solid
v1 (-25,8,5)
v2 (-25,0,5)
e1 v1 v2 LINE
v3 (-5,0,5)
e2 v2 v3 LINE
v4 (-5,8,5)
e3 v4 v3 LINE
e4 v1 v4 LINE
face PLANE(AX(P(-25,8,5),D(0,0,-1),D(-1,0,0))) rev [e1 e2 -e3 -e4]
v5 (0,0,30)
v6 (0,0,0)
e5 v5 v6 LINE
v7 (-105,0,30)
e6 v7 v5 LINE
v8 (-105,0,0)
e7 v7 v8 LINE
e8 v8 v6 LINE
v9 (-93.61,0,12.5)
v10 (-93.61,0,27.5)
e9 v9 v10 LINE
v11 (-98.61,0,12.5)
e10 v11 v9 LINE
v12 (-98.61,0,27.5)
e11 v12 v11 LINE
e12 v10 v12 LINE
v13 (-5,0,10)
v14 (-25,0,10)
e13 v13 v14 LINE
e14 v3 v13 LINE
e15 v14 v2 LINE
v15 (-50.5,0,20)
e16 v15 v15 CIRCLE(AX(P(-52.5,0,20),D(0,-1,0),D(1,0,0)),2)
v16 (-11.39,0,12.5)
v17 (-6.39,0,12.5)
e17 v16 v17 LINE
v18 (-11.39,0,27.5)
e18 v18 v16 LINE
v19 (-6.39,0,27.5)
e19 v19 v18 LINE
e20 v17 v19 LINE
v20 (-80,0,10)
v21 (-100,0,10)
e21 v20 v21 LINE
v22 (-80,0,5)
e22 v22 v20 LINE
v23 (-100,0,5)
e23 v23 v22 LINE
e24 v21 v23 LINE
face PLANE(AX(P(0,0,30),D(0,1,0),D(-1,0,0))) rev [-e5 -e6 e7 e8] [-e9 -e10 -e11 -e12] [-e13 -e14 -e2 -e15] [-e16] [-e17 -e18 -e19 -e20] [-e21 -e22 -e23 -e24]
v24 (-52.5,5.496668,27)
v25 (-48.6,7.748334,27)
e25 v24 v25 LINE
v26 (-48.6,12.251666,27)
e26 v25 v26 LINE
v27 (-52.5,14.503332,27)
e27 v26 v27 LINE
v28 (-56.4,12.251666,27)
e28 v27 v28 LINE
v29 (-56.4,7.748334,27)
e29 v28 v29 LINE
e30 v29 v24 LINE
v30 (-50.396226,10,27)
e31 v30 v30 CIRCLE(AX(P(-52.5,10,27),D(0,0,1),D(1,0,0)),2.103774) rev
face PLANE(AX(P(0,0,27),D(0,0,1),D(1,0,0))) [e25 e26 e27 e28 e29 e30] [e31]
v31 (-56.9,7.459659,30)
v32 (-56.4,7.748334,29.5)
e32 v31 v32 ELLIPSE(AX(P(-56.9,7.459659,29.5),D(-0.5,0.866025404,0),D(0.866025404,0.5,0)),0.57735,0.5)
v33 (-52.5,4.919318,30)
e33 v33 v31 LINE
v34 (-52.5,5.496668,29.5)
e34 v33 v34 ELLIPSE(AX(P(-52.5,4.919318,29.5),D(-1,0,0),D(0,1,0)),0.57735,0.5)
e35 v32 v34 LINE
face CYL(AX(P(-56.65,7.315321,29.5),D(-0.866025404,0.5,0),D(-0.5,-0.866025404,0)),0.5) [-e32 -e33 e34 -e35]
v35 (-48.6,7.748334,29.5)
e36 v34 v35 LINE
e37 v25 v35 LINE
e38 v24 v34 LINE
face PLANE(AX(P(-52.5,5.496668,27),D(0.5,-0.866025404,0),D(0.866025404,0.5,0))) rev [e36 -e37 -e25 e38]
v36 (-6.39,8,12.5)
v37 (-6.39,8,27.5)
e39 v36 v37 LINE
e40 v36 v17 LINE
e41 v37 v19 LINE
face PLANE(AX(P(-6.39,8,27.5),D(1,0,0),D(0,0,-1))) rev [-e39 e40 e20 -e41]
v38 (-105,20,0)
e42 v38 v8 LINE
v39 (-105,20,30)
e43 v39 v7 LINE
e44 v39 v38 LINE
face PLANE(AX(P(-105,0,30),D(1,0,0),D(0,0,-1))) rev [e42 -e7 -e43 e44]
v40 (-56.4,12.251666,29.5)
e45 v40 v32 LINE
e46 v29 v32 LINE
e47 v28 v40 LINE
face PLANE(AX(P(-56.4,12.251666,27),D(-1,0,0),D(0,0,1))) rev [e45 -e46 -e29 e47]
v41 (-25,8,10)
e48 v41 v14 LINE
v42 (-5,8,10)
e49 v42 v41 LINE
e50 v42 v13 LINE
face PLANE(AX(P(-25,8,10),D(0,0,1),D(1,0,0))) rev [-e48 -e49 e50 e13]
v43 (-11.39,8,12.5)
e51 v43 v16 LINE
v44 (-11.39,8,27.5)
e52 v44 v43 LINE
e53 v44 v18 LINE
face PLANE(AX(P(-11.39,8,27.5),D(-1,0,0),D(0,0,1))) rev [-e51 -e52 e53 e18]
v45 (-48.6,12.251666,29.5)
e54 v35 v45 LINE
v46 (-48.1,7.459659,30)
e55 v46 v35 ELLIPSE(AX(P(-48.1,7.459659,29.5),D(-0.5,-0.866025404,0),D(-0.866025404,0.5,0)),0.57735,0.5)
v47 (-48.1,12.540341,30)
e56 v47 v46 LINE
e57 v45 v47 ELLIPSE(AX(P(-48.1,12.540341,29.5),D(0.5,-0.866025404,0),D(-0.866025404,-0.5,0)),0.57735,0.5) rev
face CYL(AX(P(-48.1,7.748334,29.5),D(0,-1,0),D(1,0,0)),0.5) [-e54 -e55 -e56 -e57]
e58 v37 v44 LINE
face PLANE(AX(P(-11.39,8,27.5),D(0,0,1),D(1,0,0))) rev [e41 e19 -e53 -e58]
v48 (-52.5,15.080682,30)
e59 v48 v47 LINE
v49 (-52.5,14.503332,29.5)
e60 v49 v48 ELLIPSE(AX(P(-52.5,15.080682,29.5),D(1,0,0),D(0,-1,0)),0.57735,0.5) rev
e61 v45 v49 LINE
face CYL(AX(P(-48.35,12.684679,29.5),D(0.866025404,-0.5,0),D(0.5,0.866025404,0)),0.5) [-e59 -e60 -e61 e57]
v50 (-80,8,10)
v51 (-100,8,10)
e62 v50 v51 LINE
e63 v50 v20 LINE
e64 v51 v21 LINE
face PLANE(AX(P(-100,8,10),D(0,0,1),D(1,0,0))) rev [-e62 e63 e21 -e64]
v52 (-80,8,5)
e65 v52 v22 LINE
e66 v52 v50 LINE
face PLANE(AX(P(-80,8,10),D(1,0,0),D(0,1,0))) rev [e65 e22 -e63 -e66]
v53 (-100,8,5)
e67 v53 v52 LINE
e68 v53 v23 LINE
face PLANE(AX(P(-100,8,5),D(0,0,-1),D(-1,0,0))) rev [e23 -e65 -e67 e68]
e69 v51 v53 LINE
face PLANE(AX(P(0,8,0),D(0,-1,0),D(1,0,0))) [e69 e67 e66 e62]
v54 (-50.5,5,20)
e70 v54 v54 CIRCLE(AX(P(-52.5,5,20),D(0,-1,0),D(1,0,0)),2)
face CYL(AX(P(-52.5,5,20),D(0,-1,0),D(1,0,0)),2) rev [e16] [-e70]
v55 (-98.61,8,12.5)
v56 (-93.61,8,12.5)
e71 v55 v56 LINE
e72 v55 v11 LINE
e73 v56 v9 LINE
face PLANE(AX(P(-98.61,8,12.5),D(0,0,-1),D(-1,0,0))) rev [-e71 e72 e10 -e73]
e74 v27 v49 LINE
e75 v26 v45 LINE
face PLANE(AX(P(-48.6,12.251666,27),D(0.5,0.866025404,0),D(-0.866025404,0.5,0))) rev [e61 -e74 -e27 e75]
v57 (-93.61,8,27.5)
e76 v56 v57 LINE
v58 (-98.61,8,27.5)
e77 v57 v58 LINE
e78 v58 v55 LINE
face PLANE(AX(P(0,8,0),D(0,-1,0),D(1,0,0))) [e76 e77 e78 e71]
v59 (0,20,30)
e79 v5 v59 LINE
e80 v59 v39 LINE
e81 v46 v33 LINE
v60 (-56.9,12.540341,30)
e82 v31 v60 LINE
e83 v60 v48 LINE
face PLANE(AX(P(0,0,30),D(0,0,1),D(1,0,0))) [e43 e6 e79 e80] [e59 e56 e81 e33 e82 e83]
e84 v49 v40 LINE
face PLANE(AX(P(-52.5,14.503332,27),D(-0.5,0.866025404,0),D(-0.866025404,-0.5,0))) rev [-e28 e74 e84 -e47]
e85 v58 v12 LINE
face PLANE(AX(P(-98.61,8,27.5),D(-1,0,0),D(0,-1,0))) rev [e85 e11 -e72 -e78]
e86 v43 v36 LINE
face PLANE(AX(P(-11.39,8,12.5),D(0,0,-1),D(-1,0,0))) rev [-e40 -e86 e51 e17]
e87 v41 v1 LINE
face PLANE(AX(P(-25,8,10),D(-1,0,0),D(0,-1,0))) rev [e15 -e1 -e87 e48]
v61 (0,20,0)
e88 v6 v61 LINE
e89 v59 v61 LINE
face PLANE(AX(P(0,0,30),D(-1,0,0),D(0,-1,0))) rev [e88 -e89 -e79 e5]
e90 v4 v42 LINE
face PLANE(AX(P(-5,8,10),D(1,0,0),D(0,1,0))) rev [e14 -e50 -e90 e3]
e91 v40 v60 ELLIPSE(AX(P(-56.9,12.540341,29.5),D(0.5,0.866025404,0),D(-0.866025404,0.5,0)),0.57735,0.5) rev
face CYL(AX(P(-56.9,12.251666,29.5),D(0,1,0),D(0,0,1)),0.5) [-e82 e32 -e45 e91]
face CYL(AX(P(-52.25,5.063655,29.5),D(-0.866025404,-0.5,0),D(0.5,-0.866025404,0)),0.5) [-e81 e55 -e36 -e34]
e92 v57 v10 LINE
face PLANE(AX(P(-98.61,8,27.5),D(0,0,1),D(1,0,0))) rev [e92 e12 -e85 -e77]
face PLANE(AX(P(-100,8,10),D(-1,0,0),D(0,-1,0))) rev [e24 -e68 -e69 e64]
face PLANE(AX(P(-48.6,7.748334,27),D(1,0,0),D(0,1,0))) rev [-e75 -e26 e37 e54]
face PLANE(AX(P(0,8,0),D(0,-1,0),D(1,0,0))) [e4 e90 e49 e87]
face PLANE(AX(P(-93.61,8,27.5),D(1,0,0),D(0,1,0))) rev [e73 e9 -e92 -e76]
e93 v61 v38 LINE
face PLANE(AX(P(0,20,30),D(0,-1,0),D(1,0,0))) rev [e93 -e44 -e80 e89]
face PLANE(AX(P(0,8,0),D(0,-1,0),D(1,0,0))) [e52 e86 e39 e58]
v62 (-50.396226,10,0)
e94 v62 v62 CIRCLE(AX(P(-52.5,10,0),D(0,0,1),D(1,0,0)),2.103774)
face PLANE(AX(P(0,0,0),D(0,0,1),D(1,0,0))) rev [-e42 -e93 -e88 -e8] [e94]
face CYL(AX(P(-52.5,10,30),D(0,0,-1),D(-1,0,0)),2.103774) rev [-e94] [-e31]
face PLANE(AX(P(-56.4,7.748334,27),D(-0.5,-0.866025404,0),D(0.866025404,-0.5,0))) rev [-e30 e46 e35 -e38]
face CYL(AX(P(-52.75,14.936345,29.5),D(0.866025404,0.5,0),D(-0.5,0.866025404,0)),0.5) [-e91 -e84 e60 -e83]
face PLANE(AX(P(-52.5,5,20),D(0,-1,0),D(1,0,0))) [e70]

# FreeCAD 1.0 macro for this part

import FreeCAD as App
import Part
import Sketcher
Q = App.Units.Quantity


def edges_at(feature, points):
    """Names of the edges that pass closest to the given points."""
    edges = feature.Shape.Edges
    near = lambda p: min(range(len(edges)), key=lambda i: edges[i].distToShape(Part.Vertex(*p))[0])
    return sorted({f"Edge{near(p) + 1}" for p in points})

doc = App.newDocument("Part")
body = doc.addObject("PartDesign::Body", "Body")

sketch1 = doc.addObject("Sketcher::SketchObject", "Sketch")
body.addObject(sketch1)
sketch1.AttachmentSupport = (doc.XY_Plane, [""])
sketch1.MapMode = "FlatFace"
sketch1.addGeometry([
    Part.LineSegment(App.Vector(-105, 20, 0), App.Vector(-105, 0, 0)),
    Part.LineSegment(App.Vector(-105, 0, 0), App.Vector(0, 0, 0)),
    Part.LineSegment(App.Vector(0, 0, 0), App.Vector(0, 20, 0)),
    Part.LineSegment(App.Vector(0, 20, 0), App.Vector(-105, 20, 0)),
], False)
sketch1.addConstraint([
    Sketcher.Constraint("Coincident", 0, 2, 1, 1),
    Sketcher.Constraint("Coincident", 1, 2, 2, 1),
    Sketcher.Constraint("Coincident", 2, 2, 3, 1),
    Sketcher.Constraint("Coincident", 3, 2, 0, 1),
    Sketcher.Constraint("Vertical", 0),
    Sketcher.Constraint("Horizontal", 1),
    Sketcher.Constraint("Vertical", 2),
    Sketcher.Constraint("Horizontal", 3),
    Sketcher.Constraint("Coincident", 1, 2, -1, 1),
    Sketcher.Constraint("DistanceX", 1, 1, 1, 2, Q("105 mm")),
    Sketcher.Constraint("DistanceY", 0, 2, 0, 1, Q("20 mm")),
])
pad1 = doc.addObject("PartDesign::Pad", "Pad")
body.addObject(pad1)
pad1.Profile = sketch1
pad1.Length = 30

sketch2 = doc.addObject("Sketcher::SketchObject", "Sketch001")
body.addObject(sketch2)
sketch2.AttachmentSupport = (doc.XY_Plane, [""])
sketch2.MapMode = "FlatFace"
sketch2.AttachmentOffset = App.Placement(App.Vector(0, 0, 30), App.Rotation())
sketch2.addGeometry([
    Part.LineSegment(App.Vector(-52.5, 5.5, 0), App.Vector(-48.6, 7.7, 0)),
    Part.LineSegment(App.Vector(-48.6, 7.7, 0), App.Vector(-48.6, 12.3, 0)),
    Part.LineSegment(App.Vector(-48.6, 12.3, 0), App.Vector(-52.5, 14.5, 0)),
    Part.LineSegment(App.Vector(-52.5, 14.5, 0), App.Vector(-56.4, 12.3, 0)),
    Part.LineSegment(App.Vector(-56.4, 12.3, 0), App.Vector(-56.4, 7.7, 0)),
    Part.LineSegment(App.Vector(-56.4, 7.7, 0), App.Vector(-52.5, 5.5, 0)),
], False)
sketch2.addConstraint([
    Sketcher.Constraint("Coincident", 0, 2, 1, 1),
    Sketcher.Constraint("Coincident", 1, 2, 2, 1),
    Sketcher.Constraint("Coincident", 2, 2, 3, 1),
    Sketcher.Constraint("Coincident", 3, 2, 4, 1),
    Sketcher.Constraint("Coincident", 4, 2, 5, 1),
    Sketcher.Constraint("Coincident", 5, 2, 0, 1),
    Sketcher.Constraint("Vertical", 1),
    Sketcher.Constraint("Vertical", 4),
    Sketcher.Constraint("Parallel", 0, 3),
    Sketcher.Constraint("Parallel", 2, 5),
    Sketcher.Constraint("Horizontal", 1, 2, 3, 2),
    Sketcher.Constraint("Horizontal", 0, 2, 4, 2),
    Sketcher.Constraint("Vertical", 2, 2, 5, 2),
    Sketcher.Constraint("Angle", 0, Q("30 deg")),
    Sketcher.Constraint("DistanceX", 0, 2, -1, 1, Q("48.6 mm")),
    Sketcher.Constraint("DistanceX", 2, 2, -1, 1, Q("52.5 mm")),
    Sketcher.Constraint("DistanceY", 0, 2, 2, 2, Q("6.754998 mm")),
    Sketcher.Constraint("DistanceY", -1, 1, 0, 2, Q("7.748334 mm")),
])
pocket1 = doc.addObject("PartDesign::Pocket", "Pocket")
body.addObject(pocket1)
pocket1.Profile = sketch2
pocket1.Length = 3
doc.recompute()

fillet = doc.addObject("PartDesign::Fillet", "Fillet")
body.addObject(fillet)
fillet.Base = (pocket1, edges_at(pocket1, [
    (-54.45, 6.623, 30),
    (-50.55, 6.623, 30),
    (-48.6, 10, 30),
    (-50.55, 13.377, 30),
    (-54.45, 13.377, 30),
    (-56.4, 10, 30),
]))
fillet.Radius = 0.5

sketch3 = doc.addObject("Sketcher::SketchObject", "Sketch002")
body.addObject(sketch3)
sketch3.AttachmentSupport = (doc.XY_Plane, [""])
sketch3.MapMode = "FlatFace"
sketch3.addGeometry(Part.Circle(App.Vector(-52.5, 10, 0), App.Vector(0, 0, 1), 2.1), False)
sketch3.addConstraint([
    Sketcher.Constraint("DistanceY", -1, 1, 0, 3, Q("10 mm")),
    Sketcher.Constraint("DistanceX", 0, 3, -1, 1, Q("52.5 mm")),
    Sketcher.Constraint("Diameter", 0, Q("4.207548 mm")),
])
pocket2 = doc.addObject("PartDesign::Pocket", "Pocket001")
body.addObject(pocket2)
pocket2.Profile = sketch3
pocket2.Type = "ThroughAll"
pocket2.Reversed = True

sketch4 = doc.addObject("Sketcher::SketchObject", "Sketch003")
body.addObject(sketch4)
sketch4.AttachmentSupport = (doc.XZ_Plane, [""])
sketch4.MapMode = "FlatFace"
sketch4.addGeometry(Part.Circle(App.Vector(-52.5, 20, 0), App.Vector(0, 0, 1), 2), False)
sketch4.addConstraint([
    Sketcher.Constraint("Diameter", 0, Q("4 mm")),
    Sketcher.Constraint("DistanceY", -1, 1, 0, 3, Q("20 mm")),
    Sketcher.Constraint("DistanceX", 0, 3, -1, 1, Q("52.5 mm")),
])
pocket3 = doc.addObject("PartDesign::Pocket", "Pocket002")
body.addObject(pocket3)
pocket3.Profile = sketch4
pocket3.Length = 5

sketch5 = doc.addObject("Sketcher::SketchObject", "Sketch004")
body.addObject(sketch5)
sketch5.AttachmentSupport = (doc.XZ_Plane, [""])
sketch5.MapMode = "FlatFace"
sketch5.addGeometry([
    Part.LineSegment(App.Vector(-25, 10, 0), App.Vector(-25, 5, 0)),
    Part.LineSegment(App.Vector(-25, 5, 0), App.Vector(-5, 5, 0)),
    Part.LineSegment(App.Vector(-5, 5, 0), App.Vector(-5, 10, 0)),
    Part.LineSegment(App.Vector(-5, 10, 0), App.Vector(-25, 10, 0)),
    Part.LineSegment(App.Vector(-11, 28, 0), App.Vector(-11, 12, 0)),
    Part.LineSegment(App.Vector(-11, 12, 0), App.Vector(-6, 12, 0)),
    Part.LineSegment(App.Vector(-6, 12, 0), App.Vector(-6, 28, 0)),
    Part.LineSegment(App.Vector(-6, 28, 0), App.Vector(-11, 28, 0)),
    Part.LineSegment(App.Vector(-99, 28, 0), App.Vector(-99, 12, 0)),
    Part.LineSegment(App.Vector(-99, 12, 0), App.Vector(-94, 12, 0)),
    Part.LineSegment(App.Vector(-94, 12, 0), App.Vector(-94, 28, 0)),
    Part.LineSegment(App.Vector(-94, 28, 0), App.Vector(-99, 28, 0)),
    Part.LineSegment(App.Vector(-100, 10, 0), App.Vector(-100, 5, 0)),
    Part.LineSegment(App.Vector(-100, 5, 0), App.Vector(-80, 5, 0)),
    Part.LineSegment(App.Vector(-80, 5, 0), App.Vector(-80, 10, 0)),
    Part.LineSegment(App.Vector(-80, 10, 0), App.Vector(-100, 10, 0)),
], False)
sketch5.addConstraint([
    Sketcher.Constraint("Coincident", 0, 2, 1, 1),
    Sketcher.Constraint("Coincident", 1, 2, 2, 1),
    Sketcher.Constraint("Coincident", 2, 2, 3, 1),
    Sketcher.Constraint("Coincident", 3, 2, 0, 1),
    Sketcher.Constraint("Coincident", 4, 2, 5, 1),
    Sketcher.Constraint("Coincident", 5, 2, 6, 1),
    Sketcher.Constraint("Coincident", 6, 2, 7, 1),
    Sketcher.Constraint("Coincident", 7, 2, 4, 1),
    Sketcher.Constraint("Coincident", 8, 2, 9, 1),
    Sketcher.Constraint("Coincident", 9, 2, 10, 1),
    Sketcher.Constraint("Coincident", 10, 2, 11, 1),
    Sketcher.Constraint("Coincident", 11, 2, 8, 1),
    Sketcher.Constraint("Coincident", 12, 2, 13, 1),
    Sketcher.Constraint("Coincident", 13, 2, 14, 1),
    Sketcher.Constraint("Coincident", 14, 2, 15, 1),
    Sketcher.Constraint("Coincident", 15, 2, 12, 1),
    Sketcher.Constraint("Vertical", 0),
    Sketcher.Constraint("Horizontal", 1),
    Sketcher.Constraint("Vertical", 2),
    Sketcher.Constraint("Horizontal", 3),
    Sketcher.Constraint("Vertical", 4),
    Sketcher.Constraint("Horizontal", 5),
    Sketcher.Constraint("Vertical", 6),
    Sketcher.Constraint("Horizontal", 7),
    Sketcher.Constraint("Vertical", 8),
    Sketcher.Constraint("Horizontal", 9),
    Sketcher.Constraint("Vertical", 10),
    Sketcher.Constraint("Horizontal", 11),
    Sketcher.Constraint("Vertical", 12),
    Sketcher.Constraint("Horizontal", 13),
    Sketcher.Constraint("Vertical", 14),
    Sketcher.Constraint("Horizontal", 15),
    Sketcher.Constraint("Horizontal", 5, 2, 8, 2),
    Sketcher.Constraint("Horizontal", 7, 2, 10, 2),
    Sketcher.Constraint("Horizontal", 1, 2, 12, 2),
    Sketcher.Constraint("Horizontal", 3, 2, 14, 2),
    Sketcher.Constraint("Equal", 7, 9),
    Sketcher.Constraint("Equal", 3, 13),
    Sketcher.Constraint("Equal", 11, 0),
    Sketcher.Constraint("DistanceX", 1, 1, 1, 2, Q("20 mm")),
    Sketcher.Constraint("DistanceX", 5, 1, 5, 2, Q("5 mm")),
    Sketcher.Constraint("DistanceY", 4, 2, 4, 1, Q("15 mm")),
    Sketcher.Constraint("DistanceX", 0, 2, -1, 1, Q("25 mm")),
    Sketcher.Constraint("DistanceY", -1, 1, 0, 2, Q("5 mm")),
    Sketcher.Constraint("DistanceX", 12, 2, -1, 1, Q("100 mm")),
    Sketcher.Constraint("DistanceY", -1, 1, 4, 2, Q("12.5 mm")),
    Sketcher.Constraint("DistanceX", 4, 2, -1, 1, Q("11.39 mm")),
    Sketcher.Constraint("DistanceX", 8, 2, -1, 1, Q("98.61 mm")),
])
pocket4 = doc.addObject("PartDesign::Pocket", "Pocket003")
body.addObject(pocket4)
pocket4.Profile = sketch5
pocket4.Length = 8

doc.recompute()
